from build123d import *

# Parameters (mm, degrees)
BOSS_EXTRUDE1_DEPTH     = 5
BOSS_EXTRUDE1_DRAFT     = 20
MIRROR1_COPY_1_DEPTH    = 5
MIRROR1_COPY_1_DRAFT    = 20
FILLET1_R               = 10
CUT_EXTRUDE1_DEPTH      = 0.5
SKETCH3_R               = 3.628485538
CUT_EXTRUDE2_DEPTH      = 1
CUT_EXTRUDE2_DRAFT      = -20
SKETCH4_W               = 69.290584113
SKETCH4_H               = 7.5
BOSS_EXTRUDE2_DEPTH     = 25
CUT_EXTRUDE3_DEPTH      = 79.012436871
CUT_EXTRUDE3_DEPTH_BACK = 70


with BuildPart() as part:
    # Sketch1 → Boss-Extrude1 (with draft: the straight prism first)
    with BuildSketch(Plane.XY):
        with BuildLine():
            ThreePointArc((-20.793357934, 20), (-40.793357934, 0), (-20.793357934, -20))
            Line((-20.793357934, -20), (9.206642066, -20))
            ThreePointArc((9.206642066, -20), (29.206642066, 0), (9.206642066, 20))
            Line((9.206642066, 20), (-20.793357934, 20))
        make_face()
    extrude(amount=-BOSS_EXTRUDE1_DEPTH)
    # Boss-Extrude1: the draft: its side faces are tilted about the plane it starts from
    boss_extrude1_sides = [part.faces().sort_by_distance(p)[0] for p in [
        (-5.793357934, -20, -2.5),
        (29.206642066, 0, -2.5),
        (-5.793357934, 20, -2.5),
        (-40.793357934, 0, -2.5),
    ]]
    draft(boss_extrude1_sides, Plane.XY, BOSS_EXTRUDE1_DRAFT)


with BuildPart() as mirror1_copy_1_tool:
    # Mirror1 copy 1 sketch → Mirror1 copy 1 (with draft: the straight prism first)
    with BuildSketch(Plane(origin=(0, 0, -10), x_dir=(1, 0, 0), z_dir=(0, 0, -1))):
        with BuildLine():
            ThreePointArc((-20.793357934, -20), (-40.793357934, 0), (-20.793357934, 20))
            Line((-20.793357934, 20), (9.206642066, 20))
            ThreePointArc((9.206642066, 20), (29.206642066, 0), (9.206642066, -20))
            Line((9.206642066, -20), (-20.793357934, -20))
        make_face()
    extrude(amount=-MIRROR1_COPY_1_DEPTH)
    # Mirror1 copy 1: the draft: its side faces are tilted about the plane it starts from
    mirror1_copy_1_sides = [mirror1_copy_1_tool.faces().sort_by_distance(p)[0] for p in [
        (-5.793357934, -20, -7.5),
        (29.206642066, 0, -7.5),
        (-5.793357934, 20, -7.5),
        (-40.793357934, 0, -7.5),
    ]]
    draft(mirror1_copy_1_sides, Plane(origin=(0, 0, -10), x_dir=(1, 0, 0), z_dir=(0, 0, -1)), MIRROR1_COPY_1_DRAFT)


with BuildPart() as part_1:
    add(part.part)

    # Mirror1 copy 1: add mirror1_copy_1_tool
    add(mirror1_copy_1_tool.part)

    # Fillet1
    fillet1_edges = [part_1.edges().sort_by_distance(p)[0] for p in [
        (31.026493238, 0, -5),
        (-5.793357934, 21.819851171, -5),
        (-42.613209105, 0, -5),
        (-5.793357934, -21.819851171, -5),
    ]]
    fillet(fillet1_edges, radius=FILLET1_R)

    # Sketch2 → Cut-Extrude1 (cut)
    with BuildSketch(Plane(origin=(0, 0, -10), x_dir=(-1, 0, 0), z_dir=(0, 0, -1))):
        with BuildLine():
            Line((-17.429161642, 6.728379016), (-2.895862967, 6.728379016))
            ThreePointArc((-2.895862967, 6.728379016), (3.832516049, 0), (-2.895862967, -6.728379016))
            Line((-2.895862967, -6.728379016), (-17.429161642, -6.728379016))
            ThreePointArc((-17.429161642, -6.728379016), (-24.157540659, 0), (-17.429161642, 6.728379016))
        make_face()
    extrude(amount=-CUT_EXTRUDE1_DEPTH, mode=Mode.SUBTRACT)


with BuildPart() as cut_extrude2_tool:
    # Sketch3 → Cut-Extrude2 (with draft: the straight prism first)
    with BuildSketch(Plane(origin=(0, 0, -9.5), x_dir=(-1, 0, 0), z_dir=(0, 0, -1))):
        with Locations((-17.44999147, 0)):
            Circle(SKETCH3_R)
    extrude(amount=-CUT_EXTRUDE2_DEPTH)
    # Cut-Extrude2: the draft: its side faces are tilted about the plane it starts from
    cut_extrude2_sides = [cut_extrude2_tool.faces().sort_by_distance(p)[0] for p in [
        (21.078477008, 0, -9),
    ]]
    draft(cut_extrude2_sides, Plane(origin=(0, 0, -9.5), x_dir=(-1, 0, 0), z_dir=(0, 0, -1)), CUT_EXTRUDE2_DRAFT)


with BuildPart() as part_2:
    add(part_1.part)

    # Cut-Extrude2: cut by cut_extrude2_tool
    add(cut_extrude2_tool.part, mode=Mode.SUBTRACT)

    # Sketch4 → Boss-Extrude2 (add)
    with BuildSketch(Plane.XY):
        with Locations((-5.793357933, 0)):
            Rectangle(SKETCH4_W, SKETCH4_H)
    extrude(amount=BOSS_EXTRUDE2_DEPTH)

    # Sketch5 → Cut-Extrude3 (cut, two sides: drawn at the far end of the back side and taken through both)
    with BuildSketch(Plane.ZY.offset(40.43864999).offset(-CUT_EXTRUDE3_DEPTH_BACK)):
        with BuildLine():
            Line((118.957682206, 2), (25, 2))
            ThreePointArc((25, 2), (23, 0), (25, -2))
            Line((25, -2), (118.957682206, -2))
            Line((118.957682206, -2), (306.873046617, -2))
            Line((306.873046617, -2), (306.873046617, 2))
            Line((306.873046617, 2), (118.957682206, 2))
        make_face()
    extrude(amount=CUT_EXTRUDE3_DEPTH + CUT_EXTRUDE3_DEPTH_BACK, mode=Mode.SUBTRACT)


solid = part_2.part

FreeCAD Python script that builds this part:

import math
import FreeCAD as App
import Part
import Sketcher
from FreeCAD import Vector
Q = App.Units.Quantity


def edges_at(feature, points):
    """Names of the edges that pass closest to the given points."""
    edges = feature.Shape.Edges
    near = lambda p: min(range(len(edges)), key=lambda i: edges[i].distToShape(Part.Vertex(*p))[0])
    return sorted({f"Edge{near(p) + 1}" for p in points})


def faces_at(feature, points):
    """Names of the faces that lie closest to the given points."""
    faces = feature.Shape.Faces
    near = lambda p: min(range(len(faces)), key=lambda i: faces[i].distToShape(Part.Vertex(*p))[0])
    return sorted({f"Face{near(p) + 1}" for p in points})

doc = App.newDocument("Part")
body = doc.addObject("PartDesign::Body", "Body")

sketch1 = body.newObject("Sketcher::SketchObject", "Sketch")
sketch1.AttachmentSupport = (doc.getObject("XY_Plane"), [""])
sketch1.MapMode = "FlatFace"
sketch1.addGeometry([
    Part.ArcOfCircle(Part.Circle(Vector(-21, 0, 0), Vector(0, 0, 1), 20), math.radians(90), math.radians(270)),
    Part.LineSegment(Vector(-21, -20, 0), Vector(9, -20, 0)),
    Part.ArcOfCircle(Part.Circle(Vector(9, 0, 0), Vector(0, 0, 1), 20), math.radians(-90), math.radians(90)),
    Part.LineSegment(Vector(9, 20, 0), Vector(-21, 20, 0)),
], False)
sketch1.addConstraint([
    Sketcher.Constraint("Tangent", 0, 2, 1, 1),
    Sketcher.Constraint("Tangent", 1, 2, 2, 1),
    Sketcher.Constraint("Tangent", 2, 2, 3, 1),
    Sketcher.Constraint("Tangent", 3, 2, 0, 1),
    Sketcher.Constraint("Horizontal", 1),
    Sketcher.Constraint("Horizontal", 3),
    Sketcher.Constraint("PointOnObject", 0, 3, -1),
    Sketcher.Constraint("Radius", 0, Q("20 mm")),
    Sketcher.Constraint("DistanceX", 1, 1, 1, 2, Q("30 mm")),
    Sketcher.Constraint("DistanceX", 0, 3, -1, 1, Q("20.793358 mm")),
])
pad1 = body.newObject("PartDesign::Pad", "Pad")
pad1.Profile = sketch1
pad1.Length = 5
pad1.Reversed = True
doc.recompute()

draft = body.newObject("PartDesign::Draft", "Draft")
draft.Base = (pad1, faces_at(pad1, [
    (-5.793, -20, -2.5),
    (29.207, 0, -2.5),
    (-5.793, 20, -2.5),
    (-40.793, 0, -2.5),
]))
draft.NeutralPlane = (doc.getObject("XY_Plane"), [""])
draft.Angle = 20
draft.Reversed = False
body2 = doc.addObject("PartDesign::Body", "Body001")

sketch2 = body2.newObject("Sketcher::SketchObject", "Sketch001")
sketch2.AttachmentSupport = (doc.getObject("XY_Plane001"), [""])
sketch2.MapMode = "FlatFace"
sketch2.AttachmentOffset = App.Placement(Vector(0, 0, -10), App.Rotation())
sketch2.addGeometry([
    Part.ArcOfCircle(Part.Circle(Vector(-21, 0, 0), Vector(0, 0, 1), 20), math.radians(90), math.radians(270)),
    Part.LineSegment(Vector(-21, 20, 0), Vector(9, 20, 0)),
    Part.ArcOfCircle(Part.Circle(Vector(9, 0, 0), Vector(0, 0, 1), 20), math.radians(-90), math.radians(90)),
    Part.LineSegment(Vector(9, -20, 0), Vector(-21, -20, 0)),
], False)
sketch2.addConstraint([
    Sketcher.Constraint("Tangent", 0, 1, 1, 1),
    Sketcher.Constraint("Tangent", 1, 2, 2, 2),
    Sketcher.Constraint("Tangent", 2, 1, 3, 1),
    Sketcher.Constraint("Tangent", 3, 2, 0, 2),
    Sketcher.Constraint("Horizontal", 1),
    Sketcher.Constraint("Horizontal", 3),
    Sketcher.Constraint("PointOnObject", 0, 3, -1),
    Sketcher.Constraint("Radius", 0, Q("20 mm")),
    Sketcher.Constraint("DistanceX", 1, 1, 1, 2, Q("30 mm")),
    Sketcher.Constraint("DistanceX", 0, 3, -1, 1, Q("20.793358 mm")),
])
pad2 = body2.newObject("PartDesign::Pad", "Pad001")
pad2.Profile = sketch2
pad2.Length = 5
doc.recompute()

datumplane = body2.newObject("PartDesign::Plane", "DatumPlane")
datumplane.AttachmentSupport = (doc.getObject("XY_Plane001"), [""])
datumplane.MapMode = "FlatFace"
datumplane.AttachmentOffset = App.Placement(Vector(0, 0, -10), App.Rotation())
draft2 = body2.newObject("PartDesign::Draft", "Draft001")
draft2.Base = (pad2, faces_at(pad2, [
    (-5.793, -20, -7.5),
    (29.207, 0, -7.5),
    (-5.793, 20, -7.5),
    (-40.793, 0, -7.5),
]))
draft2.NeutralPlane = (datumplane, [""])
draft2.Angle = 20
draft2.Reversed = True
doc.recompute()

boolean = body.newObject("PartDesign::Boolean", "Boolean")
boolean.Type = "Fuse"
boolean.addObjects([body2])
doc.recompute()

fillet = body.newObject("PartDesign::Fillet", "Fillet")
fillet.Base = (boolean, edges_at(boolean, [
    (31.026, 0, -5),
    (-5.793, 21.82, -5),
    (-42.613, 0, -5),
    (-5.793, -21.82, -5),
]))
fillet.Radius = 10

sketch3 = body.newObject("Sketcher::SketchObject", "Sketch002")
sketch3.AttachmentSupport = (doc.getObject("XY_Plane"), [""])
sketch3.MapMode = "FlatFace"
sketch3.AttachmentOffset = App.Placement(Vector(0, 0, -10), App.Rotation())
sketch3.addGeometry([
    Part.LineSegment(Vector(3, 7, 0), Vector(17, 7, 0)),
    Part.ArcOfCircle(Part.Circle(Vector(17, 0, 0), Vector(0, 0, 1), 7), math.radians(-90), math.radians(90)),
    Part.LineSegment(Vector(17, -7, 0), Vector(3, -7, 0)),
    Part.ArcOfCircle(Part.Circle(Vector(3, 0, 0), Vector(0, 0, 1), 7), math.radians(90), math.radians(270)),
], False)
sketch3.addConstraint([
    Sketcher.Constraint("Tangent", 0, 2, 1, 2),
    Sketcher.Constraint("Tangent", 1, 1, 2, 1),
    Sketcher.Constraint("Tangent", 2, 2, 3, 2),
    Sketcher.Constraint("Tangent", 3, 1, 0, 1),
    Sketcher.Constraint("Horizontal", 0),
    Sketcher.Constraint("Horizontal", 2),
    Sketcher.Constraint("PointOnObject", 1, 3, -1),
    Sketcher.Constraint("Radius", 1, Q("6.728379 mm")),
    Sketcher.Constraint("DistanceX", 0, 1, 0, 2, Q("14.533299 mm")),
    Sketcher.Constraint("DistanceX", -1, 1, 1, 3, Q("17.429162 mm")),
])
pocket1 = body.newObject("PartDesign::Pocket", "Pocket")
pocket1.Profile = sketch3
pocket1.Length = 0.5
pocket1.Reversed = True
body3 = doc.addObject("PartDesign::Body", "Body002")

sketch4 = body3.newObject("Sketcher::SketchObject", "Sketch003")
sketch4.AttachmentSupport = (doc.getObject("XY_Plane002"), [""])
sketch4.MapMode = "FlatFace"
sketch4.AttachmentOffset = App.Placement(Vector(0, 0, -9.5), App.Rotation())
sketch4.addGeometry(Part.Circle(Vector(17.4, 0, 0), Vector(0, 0, 1), 3.6), False)
sketch4.addConstraint([
    Sketcher.Constraint("PointOnObject", 0, 3, -1),
    Sketcher.Constraint("Diameter", 0, Q("7.256971 mm")),
    Sketcher.Constraint("DistanceX", -1, 1, 0, 3, Q("17.449991 mm")),
])
pad3 = body3.newObject("PartDesign::Pad", "Pad002")
pad3.Profile = sketch4
pad3.Length = 1
doc.recompute()

datumplane2 = body3.newObject("PartDesign::Plane", "DatumPlane001")
datumplane2.AttachmentSupport = (doc.getObject("XY_Plane002"), [""])
datumplane2.MapMode = "FlatFace"
datumplane2.AttachmentOffset = App.Placement(Vector(0, 0, -9.5), App.Rotation())
draft3 = body3.newObject("PartDesign::Draft", "Draft002")
draft3.Base = (pad3, faces_at(pad3, [(21.078, 0, -9)]))
draft3.NeutralPlane = (datumplane2, [""])
draft3.Angle = 20
draft3.Reversed = False
doc.recompute()

boolean2 = body.newObject("PartDesign::Boolean", "Boolean001")
boolean2.Type = "Cut"
boolean2.addObjects([body3])

sketch5 = body.newObject("Sketcher::SketchObject", "Sketch004")
sketch5.AttachmentSupport = (doc.getObject("XY_Plane"), [""])
sketch5.MapMode = "FlatFace"
sketch5.addGeometry([
    Part.LineSegment(Vector(-40, 4, 0), Vector(-40, -4, 0)),
    Part.LineSegment(Vector(-40, -4, 0), Vector(29, -4, 0)),
    Part.LineSegment(Vector(29, -4, 0), Vector(29, 4, 0)),
    Part.LineSegment(Vector(29, 4, 0), Vector(-40, 4, 0)),
], False)
sketch5.addConstraint([
    Sketcher.Constraint("Coincident", 0, 2, 1, 1),
    Sketcher.Constraint("Coincident", 1, 2, 2, 1),
    Sketcher.Constraint("Coincident", 2, 2, 3, 1),
    Sketcher.Constraint("Coincident", 3, 2, 0, 1),
    Sketcher.Constraint("Vertical", 0),
    Sketcher.Constraint("Horizontal", 1),
    Sketcher.Constraint("Vertical", 2),
    Sketcher.Constraint("Horizontal", 3),
    Sketcher.Constraint("DistanceY", 0, 2, 0, 1, Q("7.5 mm")),
    Sketcher.Constraint("DistanceY", 0, 2, -1, 1, Q("3.75 mm")),
    Sketcher.Constraint("DistanceX", 1, 1, 1, 2, Q("69.290584 mm")),
    Sketcher.Constraint("DistanceX", 0, 2, -1, 1, Q("40.43865 mm")),
])
pad4 = body.newObject("PartDesign::Pad", "Pad003")
pad4.Profile = sketch5
pad4.Length = 25

sketch6 = body.newObject("Sketcher::SketchObject", "Sketch005")
sketch6.AttachmentSupport = (doc.getObject("YZ_Plane"), [""])
sketch6.MapMode = "FlatFace"
sketch6.AttachmentOffset = App.Placement(Vector(0, 0, -40.43865), App.Rotation())
sketch6.addGeometry([
    Part.ArcOfCircle(Part.Circle(Vector(0, 25, 0), Vector(0, 0, 1), 2), math.radians(180), math.radians(360)),
    Part.LineSegment(Vector(-2, 25, 0), Vector(-2, 306.9, 0)),
    Part.LineSegment(Vector(-2, 306.9, 0), Vector(2, 306.9, 0)),
    Part.LineSegment(Vector(2, 306.9, 0), Vector(2, 25, 0)),
], False)
sketch6.addConstraint([
    Sketcher.Constraint("Tangent", 0, 1, 1, 1),
    Sketcher.Constraint("Coincident", 1, 2, 2, 1),
    Sketcher.Constraint("Coincident", 2, 2, 3, 1),
    Sketcher.Constraint("Tangent", 3, 2, 0, 2),
    Sketcher.Constraint("Vertical", 1),
    Sketcher.Constraint("Horizontal", 2),
    Sketcher.Constraint("Vertical", 3),
    Sketcher.Constraint("PointOnObject", 0, 3, -2),
    Sketcher.Constraint("Radius", 0, Q("2 mm")),
    Sketcher.Constraint("DistanceY", -1, 1, 0, 3, Q("25 mm")),
    Sketcher.Constraint("DistanceY", 1, 1, 1, 2, Q("281.873047 mm")),
])
pocket2 = body.newObject("PartDesign::Pocket", "Pocket001")
pocket2.Profile = sketch6
pocket2.Type = "ThroughAll"
pocket2.Midplane = True

doc.recompute()
